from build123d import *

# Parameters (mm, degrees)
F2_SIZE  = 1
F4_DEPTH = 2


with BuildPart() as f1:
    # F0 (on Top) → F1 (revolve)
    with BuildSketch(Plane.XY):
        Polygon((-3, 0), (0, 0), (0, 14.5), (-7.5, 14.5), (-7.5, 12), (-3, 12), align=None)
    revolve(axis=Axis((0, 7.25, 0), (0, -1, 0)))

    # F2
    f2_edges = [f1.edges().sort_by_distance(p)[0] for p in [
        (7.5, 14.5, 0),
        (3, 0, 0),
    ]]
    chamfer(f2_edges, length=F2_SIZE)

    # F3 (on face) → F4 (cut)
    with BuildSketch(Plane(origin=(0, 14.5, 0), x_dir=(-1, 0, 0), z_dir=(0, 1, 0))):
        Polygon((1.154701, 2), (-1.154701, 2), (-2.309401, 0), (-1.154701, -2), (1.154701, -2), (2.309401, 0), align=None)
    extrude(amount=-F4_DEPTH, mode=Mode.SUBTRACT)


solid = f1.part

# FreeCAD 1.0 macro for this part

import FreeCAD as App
import Part
import Sketcher
from FreeCAD import Vector
Q = App.Units.Quantity


def edges_at(feature, points):
    """Names of the edges that pass closest to the given points."""
    edges = feature.Shape.Edges
    near = lambda p: min(range(len(edges)), key=lambda i: edges[i].distToShape(Part.Vertex(*p))[0])
    return sorted({f"Edge{near(p) + 1}" for p in points})

doc = App.newDocument("Part")
body = doc.addObject("PartDesign::Body", "Body")

sketch1 = body.newObject("Sketcher::SketchObject", "Sketch")
sketch1.AttachmentSupport = (doc.getObject("XY_Plane"), [""])
sketch1.MapMode = "FlatFace"
sketch1.addGeometry(Part.LineSegment(Vector(-3, 0, 0), Vector(0, 0, 0)), False)
sketch1.addGeometry(Part.LineSegment(Vector(0, 0, 0), Vector(0, 14.5, 0)), False)
sketch1.addGeometry(Part.LineSegment(Vector(0, 14.5, 0), Vector(-7.5, 14.5, 0)), False)
sketch1.addGeometry(Part.LineSegment(Vector(-7.5, 14.5, 0), Vector(-7.5, 12, 0)), False)
sketch1.addGeometry(Part.LineSegment(Vector(-7.5, 12, 0), Vector(-3, 12, 0)), False)
sketch1.addGeometry(Part.LineSegment(Vector(-3, 12, 0), Vector(-3, 0, 0)), False)
sketch1.addConstraint(Sketcher.Constraint("Coincident", 0, 2, 1, 1))
sketch1.addConstraint(Sketcher.Constraint("Coincident", 1, 2, 2, 1))
sketch1.addConstraint(Sketcher.Constraint("Coincident", 2, 2, 3, 1))
sketch1.addConstraint(Sketcher.Constraint("Coincident", 3, 2, 4, 1))
sketch1.addConstraint(Sketcher.Constraint("Coincident", 4, 2, 5, 1))
sketch1.addConstraint(Sketcher.Constraint("Coincident", 5, 2, 0, 1))
sketch1.addConstraint(Sketcher.Constraint("Horizontal", 0))
sketch1.addConstraint(Sketcher.Constraint("Vertical", 1))
sketch1.addConstraint(Sketcher.Constraint("Horizontal", 2))
sketch1.addConstraint(Sketcher.Constraint("Vertical", 3))
sketch1.addConstraint(Sketcher.Constraint("Horizontal", 4))
sketch1.addConstraint(Sketcher.Constraint("Vertical", 5))
sketch1.addConstraint(Sketcher.Constraint("Coincident", 0, 2, -1, 1))
sketch1.addConstraint(Sketcher.Constraint("DistanceX", 0, 1, 0, 2, 3.0))
sketch1.addConstraint(Sketcher.Constraint("DistanceY", 5, 2, 5, 1, 12.0))
sketch1.addConstraint(Sketcher.Constraint("DistanceX", 2, 2, 2, 1, 7.5))
sketch1.addConstraint(Sketcher.Constraint("DistanceY", 1, 1, 1, 2, 14.5))
revolution = body.newObject("PartDesign::Revolution", "Revolution")
revolution.Profile = sketch1
revolution.ReferenceAxis = (sketch1, ["V_Axis"])
revolution.Angle = 360
doc.recompute()

chamfer = body.newObject("PartDesign::Chamfer", "Chamfer")
chamfer.Base = (revolution, edges_at(revolution, [(7.5, 14.5, 0), (3, 0, 0)]))
chamfer.Size = 1

sketch2 = body.newObject("Sketcher::SketchObject", "Sketch001")
sketch2.AttachmentSupport = (doc.getObject("XZ_Plane"), [""])
sketch2.MapMode = "FlatFace"
sketch2.AttachmentOffset = App.Placement(Vector(0, 0, -14.5), App.Rotation())
sketch2.addGeometry(Part.LineSegment(Vector(-1.2, 2, 0), Vector(1.2, 2, 0)), False)
sketch2.addGeometry(Part.LineSegment(Vector(1.2, 2, 0), Vector(2.3, 0, 0)), False)
sketch2.addGeometry(Part.LineSegment(Vector(2.3, 0, 0), Vector(1.2, -2, 0)), False)
sketch2.addGeometry(Part.LineSegment(Vector(1.2, -2, 0), Vector(-1.2, -2, 0)), False)
sketch2.addGeometry(Part.LineSegment(Vector(-1.2, -2, 0), Vector(-2.3, 0, 0)), False)
sketch2.addGeometry(Part.LineSegment(Vector(-2.3, 0, 0), Vector(-1.2, 2, 0)), False)
sketch2.addConstraint(Sketcher.Constraint("Coincident", 0, 2, 1, 1))
sketch2.addConstraint(Sketcher.Constraint("Coincident", 1, 2, 2, 1))
sketch2.addConstraint(Sketcher.Constraint("Coincident", 2, 2, 3, 1))
sketch2.addConstraint(Sketcher.Constraint("Coincident", 3, 2, 4, 1))
sketch2.addConstraint(Sketcher.Constraint("Coincident", 4, 2, 5, 1))
sketch2.addConstraint(Sketcher.Constraint("Coincident", 5, 2, 0, 1))
sketch2.addConstraint(Sketcher.Constraint("Horizontal", 0))
sketch2.addConstraint(Sketcher.Constraint("Horizontal", 3))
sketch2.addConstraint(Sketcher.Constraint("Symmetric", 0, 2, 3, 2, -1, 1))
sketch2.addConstraint(Sketcher.Constraint("Symmetric", 1, 2, 4, 2, -1, 1))
sketch2.addConstraint(Sketcher.Constraint("PointOnObject", 1, 2, -1))
sketch2.addConstraint(Sketcher.Constraint("Parallel", 2, 5))
sketch2.addConstraint(Sketcher.Constraint("Vertical", 0, 2, 2, 2))
sketch2.addConstraint(Sketcher.Constraint("Angle", 1, Q("-60.000012 deg")))
sketch2.addConstraint(Sketcher.Constraint("DistanceY", -1, 1, 0, 2, 2.0))
sketch2.addConstraint(Sketcher.Constraint("DistanceX", 0, 1, 0, 2, 2.309402))
pocket1 = body.newObject("PartDesign::Pocket", "Pocket")
pocket1.Profile = sketch2
pocket1.Length = 2
pocket1.Reversed = True

doc.recompute()
